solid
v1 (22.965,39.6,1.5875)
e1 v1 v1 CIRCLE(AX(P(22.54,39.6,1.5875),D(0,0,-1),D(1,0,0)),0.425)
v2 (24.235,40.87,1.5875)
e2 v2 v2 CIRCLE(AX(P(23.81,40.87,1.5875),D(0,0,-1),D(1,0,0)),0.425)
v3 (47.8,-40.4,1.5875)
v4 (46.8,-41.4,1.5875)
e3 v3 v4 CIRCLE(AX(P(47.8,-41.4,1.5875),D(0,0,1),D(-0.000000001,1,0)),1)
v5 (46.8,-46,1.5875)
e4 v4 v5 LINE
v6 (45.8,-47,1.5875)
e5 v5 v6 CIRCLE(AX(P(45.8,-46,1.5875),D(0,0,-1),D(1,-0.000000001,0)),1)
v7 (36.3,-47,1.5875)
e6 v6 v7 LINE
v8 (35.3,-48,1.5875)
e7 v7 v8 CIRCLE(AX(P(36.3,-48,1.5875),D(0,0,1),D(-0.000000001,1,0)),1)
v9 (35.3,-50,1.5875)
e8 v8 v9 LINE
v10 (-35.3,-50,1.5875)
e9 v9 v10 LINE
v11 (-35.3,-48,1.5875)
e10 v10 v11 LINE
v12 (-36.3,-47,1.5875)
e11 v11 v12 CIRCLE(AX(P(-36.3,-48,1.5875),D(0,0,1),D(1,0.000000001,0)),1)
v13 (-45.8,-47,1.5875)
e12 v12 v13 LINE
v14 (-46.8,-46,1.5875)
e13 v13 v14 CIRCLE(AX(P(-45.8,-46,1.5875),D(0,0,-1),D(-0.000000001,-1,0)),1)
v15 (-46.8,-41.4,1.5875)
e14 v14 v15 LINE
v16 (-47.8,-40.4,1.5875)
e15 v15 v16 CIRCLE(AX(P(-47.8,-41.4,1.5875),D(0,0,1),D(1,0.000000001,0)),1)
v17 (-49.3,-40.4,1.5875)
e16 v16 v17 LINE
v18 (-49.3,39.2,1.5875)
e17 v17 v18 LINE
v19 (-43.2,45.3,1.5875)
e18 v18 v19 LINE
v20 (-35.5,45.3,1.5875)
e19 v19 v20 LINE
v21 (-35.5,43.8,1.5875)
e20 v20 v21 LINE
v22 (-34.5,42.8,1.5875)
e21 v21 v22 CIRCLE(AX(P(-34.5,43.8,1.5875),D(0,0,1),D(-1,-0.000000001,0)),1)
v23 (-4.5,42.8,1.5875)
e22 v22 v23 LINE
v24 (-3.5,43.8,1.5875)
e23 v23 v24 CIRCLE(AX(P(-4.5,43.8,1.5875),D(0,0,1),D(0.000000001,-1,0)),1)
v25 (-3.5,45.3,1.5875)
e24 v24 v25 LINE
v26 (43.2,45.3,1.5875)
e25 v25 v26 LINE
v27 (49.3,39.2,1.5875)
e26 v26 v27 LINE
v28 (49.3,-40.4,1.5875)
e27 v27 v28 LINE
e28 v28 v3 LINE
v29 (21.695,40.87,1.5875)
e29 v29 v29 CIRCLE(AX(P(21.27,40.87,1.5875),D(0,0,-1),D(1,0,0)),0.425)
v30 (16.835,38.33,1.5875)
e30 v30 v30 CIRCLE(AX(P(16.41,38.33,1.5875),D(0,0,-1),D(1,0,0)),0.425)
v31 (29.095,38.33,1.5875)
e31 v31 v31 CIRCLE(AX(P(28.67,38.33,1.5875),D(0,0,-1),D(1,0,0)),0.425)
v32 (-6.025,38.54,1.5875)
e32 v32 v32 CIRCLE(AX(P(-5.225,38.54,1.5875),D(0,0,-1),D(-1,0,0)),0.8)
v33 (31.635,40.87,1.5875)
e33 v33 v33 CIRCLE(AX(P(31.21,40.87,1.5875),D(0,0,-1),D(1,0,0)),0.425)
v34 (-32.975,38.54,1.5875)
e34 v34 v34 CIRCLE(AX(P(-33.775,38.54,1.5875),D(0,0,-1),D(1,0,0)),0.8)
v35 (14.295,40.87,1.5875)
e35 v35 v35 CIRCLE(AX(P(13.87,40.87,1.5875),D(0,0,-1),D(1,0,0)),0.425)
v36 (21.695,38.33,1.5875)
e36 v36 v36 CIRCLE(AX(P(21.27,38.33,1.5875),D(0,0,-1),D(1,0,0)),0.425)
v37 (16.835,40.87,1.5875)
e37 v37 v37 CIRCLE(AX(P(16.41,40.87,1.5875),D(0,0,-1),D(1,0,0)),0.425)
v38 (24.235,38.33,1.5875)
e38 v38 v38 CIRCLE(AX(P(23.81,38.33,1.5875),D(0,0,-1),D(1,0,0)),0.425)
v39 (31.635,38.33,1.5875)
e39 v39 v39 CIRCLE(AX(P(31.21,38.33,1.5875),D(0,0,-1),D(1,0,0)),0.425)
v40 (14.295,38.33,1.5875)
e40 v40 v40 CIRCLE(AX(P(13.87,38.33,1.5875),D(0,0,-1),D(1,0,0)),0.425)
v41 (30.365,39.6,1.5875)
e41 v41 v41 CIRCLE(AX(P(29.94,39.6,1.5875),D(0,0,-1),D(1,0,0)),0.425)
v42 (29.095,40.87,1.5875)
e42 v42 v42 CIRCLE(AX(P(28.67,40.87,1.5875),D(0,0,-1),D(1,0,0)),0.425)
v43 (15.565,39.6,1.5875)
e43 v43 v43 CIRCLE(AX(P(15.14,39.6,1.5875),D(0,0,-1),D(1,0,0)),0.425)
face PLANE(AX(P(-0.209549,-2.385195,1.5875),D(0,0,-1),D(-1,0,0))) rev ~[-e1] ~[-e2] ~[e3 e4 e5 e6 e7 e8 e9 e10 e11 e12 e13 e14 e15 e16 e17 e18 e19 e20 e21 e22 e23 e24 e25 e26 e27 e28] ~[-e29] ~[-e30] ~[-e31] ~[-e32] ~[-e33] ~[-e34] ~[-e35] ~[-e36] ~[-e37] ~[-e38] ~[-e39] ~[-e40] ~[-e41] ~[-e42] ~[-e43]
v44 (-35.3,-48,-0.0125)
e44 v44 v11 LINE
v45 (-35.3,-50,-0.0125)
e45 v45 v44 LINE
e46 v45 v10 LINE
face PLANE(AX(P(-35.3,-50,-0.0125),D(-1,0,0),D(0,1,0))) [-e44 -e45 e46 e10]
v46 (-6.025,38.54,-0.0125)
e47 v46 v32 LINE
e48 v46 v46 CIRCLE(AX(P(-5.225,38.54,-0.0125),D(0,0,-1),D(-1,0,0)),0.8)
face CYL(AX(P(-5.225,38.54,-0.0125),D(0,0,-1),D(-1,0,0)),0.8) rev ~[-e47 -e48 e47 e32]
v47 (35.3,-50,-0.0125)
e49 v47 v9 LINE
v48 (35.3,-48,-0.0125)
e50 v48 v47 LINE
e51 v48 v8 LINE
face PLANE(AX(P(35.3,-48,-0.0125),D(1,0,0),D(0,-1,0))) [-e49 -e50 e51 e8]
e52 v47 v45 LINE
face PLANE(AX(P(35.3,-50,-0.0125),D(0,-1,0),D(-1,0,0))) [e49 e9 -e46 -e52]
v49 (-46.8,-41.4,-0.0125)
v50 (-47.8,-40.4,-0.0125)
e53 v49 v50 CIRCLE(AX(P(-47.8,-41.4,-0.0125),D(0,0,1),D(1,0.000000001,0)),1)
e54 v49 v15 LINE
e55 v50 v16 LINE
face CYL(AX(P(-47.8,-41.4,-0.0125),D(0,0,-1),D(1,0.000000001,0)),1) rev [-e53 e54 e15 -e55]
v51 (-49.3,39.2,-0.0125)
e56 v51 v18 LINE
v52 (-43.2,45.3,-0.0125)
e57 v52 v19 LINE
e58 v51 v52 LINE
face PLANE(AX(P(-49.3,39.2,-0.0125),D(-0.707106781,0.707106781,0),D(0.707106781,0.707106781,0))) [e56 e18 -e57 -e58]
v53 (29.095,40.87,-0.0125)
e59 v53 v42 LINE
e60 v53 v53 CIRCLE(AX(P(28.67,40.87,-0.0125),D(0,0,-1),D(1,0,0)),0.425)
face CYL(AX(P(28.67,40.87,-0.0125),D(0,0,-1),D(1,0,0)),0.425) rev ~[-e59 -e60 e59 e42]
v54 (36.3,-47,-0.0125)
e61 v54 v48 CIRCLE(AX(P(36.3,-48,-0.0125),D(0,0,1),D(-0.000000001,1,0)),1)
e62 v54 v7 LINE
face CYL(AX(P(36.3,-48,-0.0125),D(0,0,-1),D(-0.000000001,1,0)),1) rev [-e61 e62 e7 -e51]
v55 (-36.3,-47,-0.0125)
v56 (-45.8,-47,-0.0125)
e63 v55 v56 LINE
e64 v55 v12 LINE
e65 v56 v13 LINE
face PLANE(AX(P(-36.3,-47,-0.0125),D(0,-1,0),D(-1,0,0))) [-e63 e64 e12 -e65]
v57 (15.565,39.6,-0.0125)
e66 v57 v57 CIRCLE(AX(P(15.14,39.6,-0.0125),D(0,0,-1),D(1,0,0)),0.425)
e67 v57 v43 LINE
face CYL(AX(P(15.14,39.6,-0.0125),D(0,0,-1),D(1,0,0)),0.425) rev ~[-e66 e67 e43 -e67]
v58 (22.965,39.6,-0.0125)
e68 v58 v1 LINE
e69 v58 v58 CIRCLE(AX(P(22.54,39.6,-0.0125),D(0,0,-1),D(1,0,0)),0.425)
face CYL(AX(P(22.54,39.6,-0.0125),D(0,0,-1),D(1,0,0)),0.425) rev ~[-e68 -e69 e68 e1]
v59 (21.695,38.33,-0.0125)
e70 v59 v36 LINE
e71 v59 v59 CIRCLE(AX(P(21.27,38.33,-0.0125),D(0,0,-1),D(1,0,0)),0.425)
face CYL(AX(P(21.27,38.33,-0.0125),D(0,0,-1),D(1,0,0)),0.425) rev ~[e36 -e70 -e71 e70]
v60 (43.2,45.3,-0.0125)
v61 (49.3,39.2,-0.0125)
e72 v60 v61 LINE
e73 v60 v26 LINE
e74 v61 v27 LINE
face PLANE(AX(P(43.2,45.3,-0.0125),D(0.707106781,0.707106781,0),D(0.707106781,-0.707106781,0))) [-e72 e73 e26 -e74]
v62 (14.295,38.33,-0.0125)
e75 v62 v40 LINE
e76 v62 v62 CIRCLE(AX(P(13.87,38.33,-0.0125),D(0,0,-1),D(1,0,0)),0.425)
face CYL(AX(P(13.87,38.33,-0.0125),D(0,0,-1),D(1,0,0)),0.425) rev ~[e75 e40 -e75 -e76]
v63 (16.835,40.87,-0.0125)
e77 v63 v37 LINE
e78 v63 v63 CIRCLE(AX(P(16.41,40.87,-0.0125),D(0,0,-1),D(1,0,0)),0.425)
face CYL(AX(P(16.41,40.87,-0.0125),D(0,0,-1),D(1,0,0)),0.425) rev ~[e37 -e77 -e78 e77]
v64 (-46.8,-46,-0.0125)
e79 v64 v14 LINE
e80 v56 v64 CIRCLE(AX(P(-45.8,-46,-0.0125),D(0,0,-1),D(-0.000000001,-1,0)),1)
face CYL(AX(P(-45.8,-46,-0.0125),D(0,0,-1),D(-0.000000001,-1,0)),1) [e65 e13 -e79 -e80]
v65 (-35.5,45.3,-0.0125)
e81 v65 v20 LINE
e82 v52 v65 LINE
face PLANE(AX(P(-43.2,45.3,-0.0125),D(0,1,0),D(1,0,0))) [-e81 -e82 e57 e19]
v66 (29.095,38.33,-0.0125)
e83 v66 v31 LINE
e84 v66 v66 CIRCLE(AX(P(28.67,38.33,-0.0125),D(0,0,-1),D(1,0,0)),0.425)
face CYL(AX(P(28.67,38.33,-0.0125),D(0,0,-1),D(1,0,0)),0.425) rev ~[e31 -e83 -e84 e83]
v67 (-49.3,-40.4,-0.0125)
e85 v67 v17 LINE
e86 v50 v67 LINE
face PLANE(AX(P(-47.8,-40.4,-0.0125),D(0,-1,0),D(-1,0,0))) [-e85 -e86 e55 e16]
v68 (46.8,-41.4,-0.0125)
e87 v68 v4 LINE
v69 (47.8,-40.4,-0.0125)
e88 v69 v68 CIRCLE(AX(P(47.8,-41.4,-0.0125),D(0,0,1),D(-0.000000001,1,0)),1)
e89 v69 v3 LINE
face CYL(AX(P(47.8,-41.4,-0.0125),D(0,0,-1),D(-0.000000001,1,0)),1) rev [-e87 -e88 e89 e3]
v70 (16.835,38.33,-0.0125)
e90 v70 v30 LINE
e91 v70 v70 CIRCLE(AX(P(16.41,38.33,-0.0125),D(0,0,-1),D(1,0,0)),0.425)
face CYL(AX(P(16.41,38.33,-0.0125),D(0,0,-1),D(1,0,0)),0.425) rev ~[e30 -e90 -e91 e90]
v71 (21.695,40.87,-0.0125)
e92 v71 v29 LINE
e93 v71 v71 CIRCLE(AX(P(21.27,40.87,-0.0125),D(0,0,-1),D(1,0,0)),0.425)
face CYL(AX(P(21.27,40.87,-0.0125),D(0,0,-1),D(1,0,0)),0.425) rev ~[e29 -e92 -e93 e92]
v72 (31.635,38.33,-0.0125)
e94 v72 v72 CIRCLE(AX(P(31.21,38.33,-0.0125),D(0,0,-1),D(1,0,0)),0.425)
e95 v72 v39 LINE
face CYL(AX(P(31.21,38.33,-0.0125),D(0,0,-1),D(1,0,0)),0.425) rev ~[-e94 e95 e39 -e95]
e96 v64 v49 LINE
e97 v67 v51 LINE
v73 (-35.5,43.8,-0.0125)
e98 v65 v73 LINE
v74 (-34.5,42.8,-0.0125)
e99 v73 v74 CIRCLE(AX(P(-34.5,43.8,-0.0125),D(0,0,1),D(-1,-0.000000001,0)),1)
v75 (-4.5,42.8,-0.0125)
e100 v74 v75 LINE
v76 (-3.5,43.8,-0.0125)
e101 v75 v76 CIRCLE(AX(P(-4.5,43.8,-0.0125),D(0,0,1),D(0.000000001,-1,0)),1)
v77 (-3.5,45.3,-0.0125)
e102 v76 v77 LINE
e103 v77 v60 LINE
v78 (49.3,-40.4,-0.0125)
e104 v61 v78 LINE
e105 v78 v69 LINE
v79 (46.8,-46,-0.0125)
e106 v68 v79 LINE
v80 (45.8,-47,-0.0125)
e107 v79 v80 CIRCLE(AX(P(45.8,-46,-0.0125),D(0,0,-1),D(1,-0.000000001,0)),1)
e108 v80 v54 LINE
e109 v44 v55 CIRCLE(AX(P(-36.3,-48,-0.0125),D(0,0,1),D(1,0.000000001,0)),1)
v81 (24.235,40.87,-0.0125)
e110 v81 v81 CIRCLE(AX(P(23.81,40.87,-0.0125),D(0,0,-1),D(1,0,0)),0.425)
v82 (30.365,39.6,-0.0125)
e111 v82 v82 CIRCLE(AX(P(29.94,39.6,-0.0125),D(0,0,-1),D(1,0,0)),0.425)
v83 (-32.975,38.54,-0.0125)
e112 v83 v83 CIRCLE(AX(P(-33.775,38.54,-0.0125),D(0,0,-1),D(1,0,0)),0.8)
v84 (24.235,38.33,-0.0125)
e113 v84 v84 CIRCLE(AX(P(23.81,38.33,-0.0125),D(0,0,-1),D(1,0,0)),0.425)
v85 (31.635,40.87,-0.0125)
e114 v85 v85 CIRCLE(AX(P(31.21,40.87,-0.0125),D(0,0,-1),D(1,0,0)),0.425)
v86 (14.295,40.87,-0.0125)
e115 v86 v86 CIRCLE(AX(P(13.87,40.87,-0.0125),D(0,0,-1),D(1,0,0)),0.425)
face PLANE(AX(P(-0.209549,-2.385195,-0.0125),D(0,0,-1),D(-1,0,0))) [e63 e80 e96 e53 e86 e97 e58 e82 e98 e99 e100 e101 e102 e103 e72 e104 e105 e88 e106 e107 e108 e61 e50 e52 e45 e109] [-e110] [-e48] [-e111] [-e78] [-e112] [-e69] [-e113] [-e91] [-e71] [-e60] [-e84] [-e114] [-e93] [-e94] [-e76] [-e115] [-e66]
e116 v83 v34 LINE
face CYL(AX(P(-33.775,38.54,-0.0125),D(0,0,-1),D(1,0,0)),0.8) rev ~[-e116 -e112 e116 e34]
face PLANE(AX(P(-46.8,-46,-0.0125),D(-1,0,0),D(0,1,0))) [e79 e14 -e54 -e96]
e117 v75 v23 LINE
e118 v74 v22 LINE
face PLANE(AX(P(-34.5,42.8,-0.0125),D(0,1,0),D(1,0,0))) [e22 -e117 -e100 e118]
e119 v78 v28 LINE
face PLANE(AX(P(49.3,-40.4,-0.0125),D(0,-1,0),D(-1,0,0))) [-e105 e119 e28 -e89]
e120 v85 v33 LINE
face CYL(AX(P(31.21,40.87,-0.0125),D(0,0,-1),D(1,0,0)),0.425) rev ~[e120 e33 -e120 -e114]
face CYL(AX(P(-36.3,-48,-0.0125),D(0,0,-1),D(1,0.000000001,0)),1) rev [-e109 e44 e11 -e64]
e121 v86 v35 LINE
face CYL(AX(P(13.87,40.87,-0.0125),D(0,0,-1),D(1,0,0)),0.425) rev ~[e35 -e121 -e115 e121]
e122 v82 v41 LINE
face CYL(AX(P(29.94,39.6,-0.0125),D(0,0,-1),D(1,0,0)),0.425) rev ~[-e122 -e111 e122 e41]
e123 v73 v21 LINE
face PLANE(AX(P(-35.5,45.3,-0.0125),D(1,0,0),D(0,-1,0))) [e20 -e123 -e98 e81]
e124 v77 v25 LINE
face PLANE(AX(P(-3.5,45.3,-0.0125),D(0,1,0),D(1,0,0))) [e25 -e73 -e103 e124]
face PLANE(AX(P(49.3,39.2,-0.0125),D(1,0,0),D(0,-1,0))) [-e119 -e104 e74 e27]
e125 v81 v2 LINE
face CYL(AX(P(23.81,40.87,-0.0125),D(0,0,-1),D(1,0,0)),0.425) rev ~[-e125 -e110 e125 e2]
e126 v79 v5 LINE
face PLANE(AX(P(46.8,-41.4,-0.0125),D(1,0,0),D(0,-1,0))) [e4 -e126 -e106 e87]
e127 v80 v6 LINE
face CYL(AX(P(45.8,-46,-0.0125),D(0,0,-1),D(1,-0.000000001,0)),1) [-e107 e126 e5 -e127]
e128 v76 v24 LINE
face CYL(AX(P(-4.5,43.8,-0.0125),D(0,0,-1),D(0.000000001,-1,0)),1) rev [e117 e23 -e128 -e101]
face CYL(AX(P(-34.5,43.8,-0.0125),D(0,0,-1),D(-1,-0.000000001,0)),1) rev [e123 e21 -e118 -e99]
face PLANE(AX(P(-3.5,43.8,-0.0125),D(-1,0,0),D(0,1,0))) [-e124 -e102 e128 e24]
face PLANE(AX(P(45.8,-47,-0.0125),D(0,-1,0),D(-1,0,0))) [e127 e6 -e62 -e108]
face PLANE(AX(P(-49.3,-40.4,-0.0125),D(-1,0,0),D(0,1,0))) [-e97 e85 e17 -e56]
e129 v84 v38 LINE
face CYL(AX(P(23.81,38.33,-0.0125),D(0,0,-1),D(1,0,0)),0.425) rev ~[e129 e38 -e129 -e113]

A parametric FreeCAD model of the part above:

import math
import FreeCAD as App
import Part
import Sketcher

V = App.Vector

doc = App.newDocument("Part")
params = doc.addObject("Spreadsheet::Sheet", "Params")
for row, (alias, value) in enumerate([
    ("sketch1_radius", "1 mm"),
    ("sketch1_diameter", "1.6 mm"),
    ("sketch1_diameter2", "0.85 mm"),
    ("sketch1_width", "30 mm"),
    ("sketch1_height", "2 mm"),
    ("pad1_length", "1.6 mm"),
], start=1):
    params.set(f"A{row}", alias)
    params.set(f"B{row}", "=" + value)
    params.setAlias(f"B{row}", alias)

body = doc.addObject("PartDesign::Body", "Body")

# Sketch on XY plane
sketch1 = body.newObject("Sketcher::SketchObject", "Sketch")
sketch1.AttachmentSupport = (doc.getObject("XY_Plane"), [""])
sketch1.MapMode = "FlatFace"
sketch1.AttachmentOffset = App.Placement(V(0, 0, -0.0125), App.Rotation())
sketch1.addGeometry([
    Part.LineSegment(V(-35.3, -50, 0), V(-35.3, -48, 0)),  # 0
    Part.ArcOfCircle(Part.Circle(V(-36.3, -48, 0), V(0, 0, 1), 1), math.radians(0), math.radians(90)),  # 1
    Part.LineSegment(V(-36.3, -47, 0), V(-45.8, -47, 0)),  # 2
    Part.ArcOfCircle(Part.Circle(V(-45.8, -46, 0), V(0, 0, 1), 1), math.radians(-180), math.radians(-90)),  # 3
    Part.LineSegment(V(-46.8, -46, 0), V(-46.8, -41.4, 0)),  # 4
    Part.ArcOfCircle(Part.Circle(V(-47.8, -41.4, 0), V(0, 0, 1), 1), math.radians(0), math.radians(90)),  # 5
    Part.LineSegment(V(-47.8, -40.4, 0), V(-49.3, -40.4, 0)),  # 6
    Part.LineSegment(V(-49.3, -40.4, 0), V(-49.3, 39.2, 0)),  # 7
    Part.LineSegment(V(-49.3, 39.2, 0), V(-43.2, 45.3, 0)),  # 8
    Part.LineSegment(V(-43.2, 45.3, 0), V(-35.5, 45.3, 0)),  # 9
    Part.LineSegment(V(-35.5, 45.3, 0), V(-35.5, 43.8, 0)),  # 10
    Part.ArcOfCircle(Part.Circle(V(-34.5, 43.8, 0), V(0, 0, 1), 1), math.radians(-180), math.radians(-90)),  # 11
    Part.LineSegment(V(-34.5, 42.8, 0), V(-4.5, 42.8, 0)),  # 12
    Part.ArcOfCircle(Part.Circle(V(-4.5, 43.8, 0), V(0, 0, 1), 1), math.radians(-90), math.radians(0)),  # 13
    Part.LineSegment(V(-3.5, 43.8, 0), V(-3.5, 45.3, 0)),  # 14
    Part.LineSegment(V(-3.5, 45.3, 0), V(43.2, 45.3, 0)),  # 15
    Part.LineSegment(V(43.2, 45.3, 0), V(49.3, 39.2, 0)),  # 16
    Part.LineSegment(V(49.3, 39.2, 0), V(49.3, -40.4, 0)),  # 17
    Part.LineSegment(V(49.3, -40.4, 0), V(47.8, -40.4, 0)),  # 18
    Part.ArcOfCircle(Part.Circle(V(47.8, -41.4, 0), V(0, 0, 1), 1), math.radians(90), math.radians(180)),  # 19
    Part.LineSegment(V(46.8, -41.4, 0), V(46.8, -46, 0)),  # 20
    Part.ArcOfCircle(Part.Circle(V(45.8, -46, 0), V(0, 0, 1), 1), math.radians(-90), math.radians(0)),  # 21
    Part.LineSegment(V(45.8, -47, 0), V(36.3, -47, 0)),  # 22
    Part.ArcOfCircle(Part.Circle(V(36.3, -48, 0), V(0, 0, 1), 1), math.radians(90), math.radians(180)),  # 23
    Part.LineSegment(V(35.3, -48, 0), V(35.3, -50, 0)),  # 24
    Part.LineSegment(V(35.3, -50, 0), V(-35.3, -50, 0)),  # 25
    Part.Circle(V(31.21, 38.33, 0), V(0, 0, 1), 0.425),  # 26
    Part.Circle(V(28.67, 38.33, 0), V(0, 0, 1), 0.425),  # 27
    Part.Circle(V(23.81, 38.33, 0), V(0, 0, 1), 0.425),  # 28
    Part.Circle(V(21.27, 38.33, 0), V(0, 0, 1), 0.425),  # 29
    Part.Circle(V(16.41, 38.33, 0), V(0, 0, 1), 0.425),  # 30
    Part.Circle(V(13.87, 38.33, 0), V(0, 0, 1), 0.425),  # 31
    Part.Circle(V(-5.225, 38.54, 0), V(0, 0, 1), 0.8),  # 32
    Part.Circle(V(-33.775, 38.54, 0), V(0, 0, 1), 0.8),  # 33
    Part.Circle(V(29.94, 39.6, 0), V(0, 0, 1), 0.425),  # 34
    Part.Circle(V(22.54, 39.6, 0), V(0, 0, 1), 0.425),  # 35
    Part.Circle(V(15.14, 39.6, 0), V(0, 0, 1), 0.425),  # 36
    Part.Circle(V(31.21, 40.87, 0), V(0, 0, 1), 0.425),  # 37
    Part.Circle(V(28.67, 40.87, 0), V(0, 0, 1), 0.425),  # 38
    Part.Circle(V(23.81, 40.87, 0), V(0, 0, 1), 0.425),  # 39
    Part.Circle(V(21.27, 40.87, 0), V(0, 0, 1), 0.425),  # 40
    Part.Circle(V(16.41, 40.87, 0), V(0, 0, 1), 0.425),  # 41
    Part.Circle(V(13.87, 40.87, 0), V(0, 0, 1), 0.425),  # 42
], False)
sketch1.addConstraint([
    Sketcher.Constraint("Tangent", 0, 2, 1, 1),
    Sketcher.Constraint("Tangent", 1, 2, 2, 1),
    Sketcher.Constraint("Tangent", 2, 2, 3, 2),
    Sketcher.Constraint("Tangent", 3, 1, 4, 1),
    Sketcher.Constraint("Tangent", 4, 2, 5, 1),
    Sketcher.Constraint("Tangent", 5, 2, 6, 1),
    Sketcher.Constraint("Coincident", 6, 2, 7, 1),
    Sketcher.Constraint("Coincident", 7, 2, 8, 1),
    Sketcher.Constraint("Coincident", 8, 2, 9, 1),
    Sketcher.Constraint("Coincident", 9, 2, 10, 1),
    Sketcher.Constraint("Tangent", 10, 2, 11, 1),
    Sketcher.Constraint("Tangent", 11, 2, 12, 1),
    Sketcher.Constraint("Tangent", 12, 2, 13, 1),
    Sketcher.Constraint("Tangent", 13, 2, 14, 1),
    Sketcher.Constraint("Coincident", 14, 2, 15, 1),
    Sketcher.Constraint("Coincident", 15, 2, 16, 1),
    Sketcher.Constraint("Coincident", 16, 2, 17, 1),
    Sketcher.Constraint("Coincident", 17, 2, 18, 1),
    Sketcher.Constraint("Tangent", 18, 2, 19, 1),
    Sketcher.Constraint("Tangent", 19, 2, 20, 1),
    Sketcher.Constraint("Tangent", 20, 2, 21, 2),
    Sketcher.Constraint("Tangent", 21, 1, 22, 1),
    Sketcher.Constraint("Tangent", 22, 2, 23, 1),
    Sketcher.Constraint("Tangent", 23, 2, 24, 1),
    Sketcher.Constraint("Coincident", 24, 2, 25, 1),
    Sketcher.Constraint("Coincident", 25, 2, 0, 1),
    Sketcher.Constraint("Vertical", 0),
    Sketcher.Constraint("Horizontal", 2),
    Sketcher.Constraint("Vertical", 4),
    Sketcher.Constraint("Horizontal", 6),
    Sketcher.Constraint("Vertical", 7),
    Sketcher.Constraint("Horizontal", 9),
    Sketcher.Constraint("Vertical", 10),
    Sketcher.Constraint("Horizontal", 12),
    Sketcher.Constraint("Vertical", 14),
    Sketcher.Constraint("Horizontal", 15),
    Sketcher.Constraint("Vertical", 17),
    Sketcher.Constraint("Horizontal", 18),
    Sketcher.Constraint("Vertical", 20),
    Sketcher.Constraint("Horizontal", 22),
    Sketcher.Constraint("Vertical", 24),
    Sketcher.Constraint("Horizontal", 25),
    Sketcher.Constraint("Equal", 1, 3),
    Sketcher.Constraint("Equal", 3, 5),
    Sketcher.Constraint("Equal", 5, 11),
    Sketcher.Constraint("Equal", 11, 13),
    Sketcher.Constraint("Equal", 13, 19),
    Sketcher.Constraint("Equal", 19, 21),
    Sketcher.Constraint("Equal", 21, 23),
    Sketcher.Constraint("Equal", 26, 27),
    Sketcher.Constraint("Equal", 27, 28),
    Sketcher.Constraint("Equal", 28, 29),
    Sketcher.Constraint("Equal", 29, 30),
    Sketcher.Constraint("Equal", 30, 31),
    Sketcher.Constraint("Equal", 32, 33),
    Sketcher.Constraint("Equal", 31, 34),
    Sketcher.Constraint("Equal", 34, 35),
    Sketcher.Constraint("Equal", 35, 36),
    Sketcher.Constraint("Equal", 36, 37),
    Sketcher.Constraint("Equal", 37, 38),
    Sketcher.Constraint("Equal", 38, 39),
    Sketcher.Constraint("Equal", 39, 40),
    Sketcher.Constraint("Equal", 40, 41),
    Sketcher.Constraint("Equal", 41, 42),
    Sketcher.Constraint("Symmetric", 5, 3, 19, 3, -2),
    Sketcher.Constraint("Symmetric", 1, 3, 23, 3, -2),
    Sketcher.Constraint("Symmetric", 8, 2, 15, 2, -2),
    Sketcher.Constraint("Symmetric", 7, 2, 16, 2, -2),
    Sketcher.Constraint("Perpendicular", 8, 16),
    Sketcher.Constraint("Horizontal", 26, 3, 27, 3),
    Sketcher.Constraint("Horizontal", 27, 3, 28, 3),
    Sketcher.Constraint("Horizontal", 28, 3, 29, 3),
    Sketcher.Constraint("Horizontal", 29, 3, 30, 3),
    Sketcher.Constraint("Horizontal", 30, 3, 31, 3),
    Sketcher.Constraint("Horizontal", 32, 3, 33, 3),
    Sketcher.Constraint("Horizontal", 34, 3, 35, 3),
    Sketcher.Constraint("Horizontal", 35, 3, 36, 3),
    Sketcher.Constraint("Horizontal", 37, 3, 38, 3),
    Sketcher.Constraint("Horizontal", 38, 3, 39, 3),
    Sketcher.Constraint("Horizontal", 39, 3, 40, 3),
    Sketcher.Constraint("Horizontal", 40, 3, 41, 3),
    Sketcher.Constraint("Horizontal", 41, 3, 42, 3),
    Sketcher.Constraint("Vertical", 26, 3, 37, 3),
    Sketcher.Constraint("Vertical", 27, 3, 38, 3),
    Sketcher.Constraint("Vertical", 28, 3, 39, 3),
    Sketcher.Constraint("Vertical", 29, 3, 40, 3),
    Sketcher.Constraint("Vertical", 30, 3, 41, 3),
    Sketcher.Constraint("Vertical", 31, 3, 42, 3),
    Sketcher.Constraint("Equal", 18, 10),
    Sketcher.Constraint("Radius", 1, 1.0),
    Sketcher.Constraint("Diameter", 32, 1.6),
    Sketcher.Constraint("Diameter", 26, 0.85),
    Sketcher.Constraint("DistanceX", 12, 1, 12, 2, 30.0),
    Sketcher.Constraint("DistanceY", 0, 1, 0, 2, 2.0),
    Sketcher.Constraint("DistanceX", 2, 2, 2, 1, 9.5),
    Sketcher.Constraint("DistanceX", 6, 2, 6, 1, 1.5),
    Sketcher.Constraint("DistanceX", 9, 1, 9, 2, 7.7),
    Sketcher.Constraint("DistanceX", 15, 1, 15, 2, 46.7),
    Sketcher.Constraint("DistanceX", 25, 2, 25, 1, 70.6),
    Sketcher.Constraint("DistanceY", 4, 1, 4, 2, 4.6),
    Sketcher.Constraint("DistanceY", 7, 1, 7, 2, 79.6),
    Sketcher.Constraint("DistanceY", 1, 3, -1, 1, 48.0),
    Sketcher.Constraint("DistanceY", -1, 1, 34, 3, 39.6),
    Sketcher.Constraint("DistanceX", 28, 3, 26, 3, 7.4),
    Sketcher.Constraint("DistanceX", 29, 3, 27, 3, 7.4),
    Sketcher.Constraint("DistanceX", 30, 3, 28, 3, 7.4),
    Sketcher.Constraint("DistanceX", 31, 3, 29, 3, 7.4),
    Sketcher.Constraint("DistanceX", 35, 3, 34, 3, 7.4),
    Sketcher.Constraint("DistanceX", 36, 3, 35, 3, 7.4),
    Sketcher.Constraint("DistanceX", -1, 1, 26, 3, 31.21),
    Sketcher.Constraint("DistanceY", -1, 1, 26, 3, 38.33),
    Sketcher.Constraint("DistanceX", -1, 1, 27, 3, 28.67),
    Sketcher.Constraint("DistanceY", -1, 1, 32, 3, 38.54),
    Sketcher.Constraint("DistanceX", -1, 1, 34, 3, 29.94),
    Sketcher.Constraint("DistanceY", -1, 1, 37, 3, 40.87),
    Sketcher.Constraint("DistanceX", 33, 3, 32, 3, 28.55),
    Sketcher.Constraint("DistanceX", 32, 3, -1, 1, 5.225),
])
sketch1.setExpression("Constraints[89]", "Params.sketch1_radius")
sketch1.setExpression("Constraints[90]", "Params.sketch1_diameter")
sketch1.setExpression("Constraints[91]", "Params.sketch1_diameter2")
sketch1.setExpression("Constraints[92]", "Params.sketch1_width")
sketch1.setExpression("Constraints[93]", "Params.sketch1_height")
pad1 = body.newObject("PartDesign::Pad", "Pad")
pad1.Profile = sketch1
pad1.setExpression("Length", "Params.pad1_length")

doc.recompute()
